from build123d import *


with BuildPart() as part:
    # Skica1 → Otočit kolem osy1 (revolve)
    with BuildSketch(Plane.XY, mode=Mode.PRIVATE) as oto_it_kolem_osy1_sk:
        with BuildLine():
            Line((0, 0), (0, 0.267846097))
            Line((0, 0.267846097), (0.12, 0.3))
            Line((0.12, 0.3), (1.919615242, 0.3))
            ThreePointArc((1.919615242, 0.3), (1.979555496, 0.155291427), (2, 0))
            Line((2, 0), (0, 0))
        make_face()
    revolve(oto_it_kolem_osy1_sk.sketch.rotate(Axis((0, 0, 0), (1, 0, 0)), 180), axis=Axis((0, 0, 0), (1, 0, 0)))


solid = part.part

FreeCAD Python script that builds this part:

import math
import FreeCAD as App
import Part
import Sketcher

V = App.Vector
Q = App.Units.Quantity

doc = App.newDocument("Part")
body = doc.addObject("PartDesign::Body", "Body")

sketch1 = body.newObject("Sketcher::SketchObject", "Sketch")
sketch1.AttachmentSupport = (doc.getObject("XY_Plane"), [""])
sketch1.MapMode = "FlatFace"
sketch1.addGeometry(Part.LineSegment(V(0, 0.27, 0), V(0, 0, 0)), False)
sketch1.addGeometry(Part.LineSegment(V(0, 0, 0), V(2, 0, 0)), False)
sketch1.addGeometry(Part.ArcOfCircle(Part.Circle(V(1.4, 0, 0), V(0, 0, 1), 0.6), math.radians(0), math.radians(30)), False)
sketch1.addGeometry(Part.LineSegment(V(1.92, 0.3, 0), V(0.12, 0.3, 0)), False)
sketch1.addGeometry(Part.LineSegment(V(0.12, 0.3, 0), V(0, 0.27, 0)), False)
sketch1.addConstraint(Sketcher.Constraint("Coincident", 0, 2, 1, 1))
sketch1.addConstraint(Sketcher.Constraint("Coincident", 1, 2, 2, 1))
sketch1.addConstraint(Sketcher.Constraint("Coincident", 2, 2, 3, 1))
sketch1.addConstraint(Sketcher.Constraint("Coincident", 3, 2, 4, 1))
sketch1.addConstraint(Sketcher.Constraint("Coincident", 4, 2, 0, 1))
sketch1.addConstraint(Sketcher.Constraint("Vertical", 0))
sketch1.addConstraint(Sketcher.Constraint("Horizontal", 1))
sketch1.addConstraint(Sketcher.Constraint("Horizontal", 3))
sketch1.addConstraint(Sketcher.Constraint("Coincident", 0, 2, -1, 1))
sketch1.addConstraint(Sketcher.Constraint("PointOnObject", 2, 3, -1))
sketch1.addConstraint(Sketcher.Constraint("Radius", 2, 0.6))
sketch1.addConstraint(Sketcher.Constraint("DistanceX", 1, 1, 1, 2, 2.0))
sketch1.addConstraint(Sketcher.Constraint("Angle", 4, Q("-165 deg")))
sketch1.addConstraint(Sketcher.Constraint("DistanceY", -1, 1, 2, 2, 0.3))
sketch1.addConstraint(Sketcher.Constraint("DistanceX", -1, 1, 3, 2, 0.12))
revolution = body.newObject("PartDesign::Revolution", "Revolution")
revolution.Profile = sketch1
revolution.ReferenceAxis = (sketch1, ["H_Axis"])
revolution.Angle = 360

doc.recompute()
